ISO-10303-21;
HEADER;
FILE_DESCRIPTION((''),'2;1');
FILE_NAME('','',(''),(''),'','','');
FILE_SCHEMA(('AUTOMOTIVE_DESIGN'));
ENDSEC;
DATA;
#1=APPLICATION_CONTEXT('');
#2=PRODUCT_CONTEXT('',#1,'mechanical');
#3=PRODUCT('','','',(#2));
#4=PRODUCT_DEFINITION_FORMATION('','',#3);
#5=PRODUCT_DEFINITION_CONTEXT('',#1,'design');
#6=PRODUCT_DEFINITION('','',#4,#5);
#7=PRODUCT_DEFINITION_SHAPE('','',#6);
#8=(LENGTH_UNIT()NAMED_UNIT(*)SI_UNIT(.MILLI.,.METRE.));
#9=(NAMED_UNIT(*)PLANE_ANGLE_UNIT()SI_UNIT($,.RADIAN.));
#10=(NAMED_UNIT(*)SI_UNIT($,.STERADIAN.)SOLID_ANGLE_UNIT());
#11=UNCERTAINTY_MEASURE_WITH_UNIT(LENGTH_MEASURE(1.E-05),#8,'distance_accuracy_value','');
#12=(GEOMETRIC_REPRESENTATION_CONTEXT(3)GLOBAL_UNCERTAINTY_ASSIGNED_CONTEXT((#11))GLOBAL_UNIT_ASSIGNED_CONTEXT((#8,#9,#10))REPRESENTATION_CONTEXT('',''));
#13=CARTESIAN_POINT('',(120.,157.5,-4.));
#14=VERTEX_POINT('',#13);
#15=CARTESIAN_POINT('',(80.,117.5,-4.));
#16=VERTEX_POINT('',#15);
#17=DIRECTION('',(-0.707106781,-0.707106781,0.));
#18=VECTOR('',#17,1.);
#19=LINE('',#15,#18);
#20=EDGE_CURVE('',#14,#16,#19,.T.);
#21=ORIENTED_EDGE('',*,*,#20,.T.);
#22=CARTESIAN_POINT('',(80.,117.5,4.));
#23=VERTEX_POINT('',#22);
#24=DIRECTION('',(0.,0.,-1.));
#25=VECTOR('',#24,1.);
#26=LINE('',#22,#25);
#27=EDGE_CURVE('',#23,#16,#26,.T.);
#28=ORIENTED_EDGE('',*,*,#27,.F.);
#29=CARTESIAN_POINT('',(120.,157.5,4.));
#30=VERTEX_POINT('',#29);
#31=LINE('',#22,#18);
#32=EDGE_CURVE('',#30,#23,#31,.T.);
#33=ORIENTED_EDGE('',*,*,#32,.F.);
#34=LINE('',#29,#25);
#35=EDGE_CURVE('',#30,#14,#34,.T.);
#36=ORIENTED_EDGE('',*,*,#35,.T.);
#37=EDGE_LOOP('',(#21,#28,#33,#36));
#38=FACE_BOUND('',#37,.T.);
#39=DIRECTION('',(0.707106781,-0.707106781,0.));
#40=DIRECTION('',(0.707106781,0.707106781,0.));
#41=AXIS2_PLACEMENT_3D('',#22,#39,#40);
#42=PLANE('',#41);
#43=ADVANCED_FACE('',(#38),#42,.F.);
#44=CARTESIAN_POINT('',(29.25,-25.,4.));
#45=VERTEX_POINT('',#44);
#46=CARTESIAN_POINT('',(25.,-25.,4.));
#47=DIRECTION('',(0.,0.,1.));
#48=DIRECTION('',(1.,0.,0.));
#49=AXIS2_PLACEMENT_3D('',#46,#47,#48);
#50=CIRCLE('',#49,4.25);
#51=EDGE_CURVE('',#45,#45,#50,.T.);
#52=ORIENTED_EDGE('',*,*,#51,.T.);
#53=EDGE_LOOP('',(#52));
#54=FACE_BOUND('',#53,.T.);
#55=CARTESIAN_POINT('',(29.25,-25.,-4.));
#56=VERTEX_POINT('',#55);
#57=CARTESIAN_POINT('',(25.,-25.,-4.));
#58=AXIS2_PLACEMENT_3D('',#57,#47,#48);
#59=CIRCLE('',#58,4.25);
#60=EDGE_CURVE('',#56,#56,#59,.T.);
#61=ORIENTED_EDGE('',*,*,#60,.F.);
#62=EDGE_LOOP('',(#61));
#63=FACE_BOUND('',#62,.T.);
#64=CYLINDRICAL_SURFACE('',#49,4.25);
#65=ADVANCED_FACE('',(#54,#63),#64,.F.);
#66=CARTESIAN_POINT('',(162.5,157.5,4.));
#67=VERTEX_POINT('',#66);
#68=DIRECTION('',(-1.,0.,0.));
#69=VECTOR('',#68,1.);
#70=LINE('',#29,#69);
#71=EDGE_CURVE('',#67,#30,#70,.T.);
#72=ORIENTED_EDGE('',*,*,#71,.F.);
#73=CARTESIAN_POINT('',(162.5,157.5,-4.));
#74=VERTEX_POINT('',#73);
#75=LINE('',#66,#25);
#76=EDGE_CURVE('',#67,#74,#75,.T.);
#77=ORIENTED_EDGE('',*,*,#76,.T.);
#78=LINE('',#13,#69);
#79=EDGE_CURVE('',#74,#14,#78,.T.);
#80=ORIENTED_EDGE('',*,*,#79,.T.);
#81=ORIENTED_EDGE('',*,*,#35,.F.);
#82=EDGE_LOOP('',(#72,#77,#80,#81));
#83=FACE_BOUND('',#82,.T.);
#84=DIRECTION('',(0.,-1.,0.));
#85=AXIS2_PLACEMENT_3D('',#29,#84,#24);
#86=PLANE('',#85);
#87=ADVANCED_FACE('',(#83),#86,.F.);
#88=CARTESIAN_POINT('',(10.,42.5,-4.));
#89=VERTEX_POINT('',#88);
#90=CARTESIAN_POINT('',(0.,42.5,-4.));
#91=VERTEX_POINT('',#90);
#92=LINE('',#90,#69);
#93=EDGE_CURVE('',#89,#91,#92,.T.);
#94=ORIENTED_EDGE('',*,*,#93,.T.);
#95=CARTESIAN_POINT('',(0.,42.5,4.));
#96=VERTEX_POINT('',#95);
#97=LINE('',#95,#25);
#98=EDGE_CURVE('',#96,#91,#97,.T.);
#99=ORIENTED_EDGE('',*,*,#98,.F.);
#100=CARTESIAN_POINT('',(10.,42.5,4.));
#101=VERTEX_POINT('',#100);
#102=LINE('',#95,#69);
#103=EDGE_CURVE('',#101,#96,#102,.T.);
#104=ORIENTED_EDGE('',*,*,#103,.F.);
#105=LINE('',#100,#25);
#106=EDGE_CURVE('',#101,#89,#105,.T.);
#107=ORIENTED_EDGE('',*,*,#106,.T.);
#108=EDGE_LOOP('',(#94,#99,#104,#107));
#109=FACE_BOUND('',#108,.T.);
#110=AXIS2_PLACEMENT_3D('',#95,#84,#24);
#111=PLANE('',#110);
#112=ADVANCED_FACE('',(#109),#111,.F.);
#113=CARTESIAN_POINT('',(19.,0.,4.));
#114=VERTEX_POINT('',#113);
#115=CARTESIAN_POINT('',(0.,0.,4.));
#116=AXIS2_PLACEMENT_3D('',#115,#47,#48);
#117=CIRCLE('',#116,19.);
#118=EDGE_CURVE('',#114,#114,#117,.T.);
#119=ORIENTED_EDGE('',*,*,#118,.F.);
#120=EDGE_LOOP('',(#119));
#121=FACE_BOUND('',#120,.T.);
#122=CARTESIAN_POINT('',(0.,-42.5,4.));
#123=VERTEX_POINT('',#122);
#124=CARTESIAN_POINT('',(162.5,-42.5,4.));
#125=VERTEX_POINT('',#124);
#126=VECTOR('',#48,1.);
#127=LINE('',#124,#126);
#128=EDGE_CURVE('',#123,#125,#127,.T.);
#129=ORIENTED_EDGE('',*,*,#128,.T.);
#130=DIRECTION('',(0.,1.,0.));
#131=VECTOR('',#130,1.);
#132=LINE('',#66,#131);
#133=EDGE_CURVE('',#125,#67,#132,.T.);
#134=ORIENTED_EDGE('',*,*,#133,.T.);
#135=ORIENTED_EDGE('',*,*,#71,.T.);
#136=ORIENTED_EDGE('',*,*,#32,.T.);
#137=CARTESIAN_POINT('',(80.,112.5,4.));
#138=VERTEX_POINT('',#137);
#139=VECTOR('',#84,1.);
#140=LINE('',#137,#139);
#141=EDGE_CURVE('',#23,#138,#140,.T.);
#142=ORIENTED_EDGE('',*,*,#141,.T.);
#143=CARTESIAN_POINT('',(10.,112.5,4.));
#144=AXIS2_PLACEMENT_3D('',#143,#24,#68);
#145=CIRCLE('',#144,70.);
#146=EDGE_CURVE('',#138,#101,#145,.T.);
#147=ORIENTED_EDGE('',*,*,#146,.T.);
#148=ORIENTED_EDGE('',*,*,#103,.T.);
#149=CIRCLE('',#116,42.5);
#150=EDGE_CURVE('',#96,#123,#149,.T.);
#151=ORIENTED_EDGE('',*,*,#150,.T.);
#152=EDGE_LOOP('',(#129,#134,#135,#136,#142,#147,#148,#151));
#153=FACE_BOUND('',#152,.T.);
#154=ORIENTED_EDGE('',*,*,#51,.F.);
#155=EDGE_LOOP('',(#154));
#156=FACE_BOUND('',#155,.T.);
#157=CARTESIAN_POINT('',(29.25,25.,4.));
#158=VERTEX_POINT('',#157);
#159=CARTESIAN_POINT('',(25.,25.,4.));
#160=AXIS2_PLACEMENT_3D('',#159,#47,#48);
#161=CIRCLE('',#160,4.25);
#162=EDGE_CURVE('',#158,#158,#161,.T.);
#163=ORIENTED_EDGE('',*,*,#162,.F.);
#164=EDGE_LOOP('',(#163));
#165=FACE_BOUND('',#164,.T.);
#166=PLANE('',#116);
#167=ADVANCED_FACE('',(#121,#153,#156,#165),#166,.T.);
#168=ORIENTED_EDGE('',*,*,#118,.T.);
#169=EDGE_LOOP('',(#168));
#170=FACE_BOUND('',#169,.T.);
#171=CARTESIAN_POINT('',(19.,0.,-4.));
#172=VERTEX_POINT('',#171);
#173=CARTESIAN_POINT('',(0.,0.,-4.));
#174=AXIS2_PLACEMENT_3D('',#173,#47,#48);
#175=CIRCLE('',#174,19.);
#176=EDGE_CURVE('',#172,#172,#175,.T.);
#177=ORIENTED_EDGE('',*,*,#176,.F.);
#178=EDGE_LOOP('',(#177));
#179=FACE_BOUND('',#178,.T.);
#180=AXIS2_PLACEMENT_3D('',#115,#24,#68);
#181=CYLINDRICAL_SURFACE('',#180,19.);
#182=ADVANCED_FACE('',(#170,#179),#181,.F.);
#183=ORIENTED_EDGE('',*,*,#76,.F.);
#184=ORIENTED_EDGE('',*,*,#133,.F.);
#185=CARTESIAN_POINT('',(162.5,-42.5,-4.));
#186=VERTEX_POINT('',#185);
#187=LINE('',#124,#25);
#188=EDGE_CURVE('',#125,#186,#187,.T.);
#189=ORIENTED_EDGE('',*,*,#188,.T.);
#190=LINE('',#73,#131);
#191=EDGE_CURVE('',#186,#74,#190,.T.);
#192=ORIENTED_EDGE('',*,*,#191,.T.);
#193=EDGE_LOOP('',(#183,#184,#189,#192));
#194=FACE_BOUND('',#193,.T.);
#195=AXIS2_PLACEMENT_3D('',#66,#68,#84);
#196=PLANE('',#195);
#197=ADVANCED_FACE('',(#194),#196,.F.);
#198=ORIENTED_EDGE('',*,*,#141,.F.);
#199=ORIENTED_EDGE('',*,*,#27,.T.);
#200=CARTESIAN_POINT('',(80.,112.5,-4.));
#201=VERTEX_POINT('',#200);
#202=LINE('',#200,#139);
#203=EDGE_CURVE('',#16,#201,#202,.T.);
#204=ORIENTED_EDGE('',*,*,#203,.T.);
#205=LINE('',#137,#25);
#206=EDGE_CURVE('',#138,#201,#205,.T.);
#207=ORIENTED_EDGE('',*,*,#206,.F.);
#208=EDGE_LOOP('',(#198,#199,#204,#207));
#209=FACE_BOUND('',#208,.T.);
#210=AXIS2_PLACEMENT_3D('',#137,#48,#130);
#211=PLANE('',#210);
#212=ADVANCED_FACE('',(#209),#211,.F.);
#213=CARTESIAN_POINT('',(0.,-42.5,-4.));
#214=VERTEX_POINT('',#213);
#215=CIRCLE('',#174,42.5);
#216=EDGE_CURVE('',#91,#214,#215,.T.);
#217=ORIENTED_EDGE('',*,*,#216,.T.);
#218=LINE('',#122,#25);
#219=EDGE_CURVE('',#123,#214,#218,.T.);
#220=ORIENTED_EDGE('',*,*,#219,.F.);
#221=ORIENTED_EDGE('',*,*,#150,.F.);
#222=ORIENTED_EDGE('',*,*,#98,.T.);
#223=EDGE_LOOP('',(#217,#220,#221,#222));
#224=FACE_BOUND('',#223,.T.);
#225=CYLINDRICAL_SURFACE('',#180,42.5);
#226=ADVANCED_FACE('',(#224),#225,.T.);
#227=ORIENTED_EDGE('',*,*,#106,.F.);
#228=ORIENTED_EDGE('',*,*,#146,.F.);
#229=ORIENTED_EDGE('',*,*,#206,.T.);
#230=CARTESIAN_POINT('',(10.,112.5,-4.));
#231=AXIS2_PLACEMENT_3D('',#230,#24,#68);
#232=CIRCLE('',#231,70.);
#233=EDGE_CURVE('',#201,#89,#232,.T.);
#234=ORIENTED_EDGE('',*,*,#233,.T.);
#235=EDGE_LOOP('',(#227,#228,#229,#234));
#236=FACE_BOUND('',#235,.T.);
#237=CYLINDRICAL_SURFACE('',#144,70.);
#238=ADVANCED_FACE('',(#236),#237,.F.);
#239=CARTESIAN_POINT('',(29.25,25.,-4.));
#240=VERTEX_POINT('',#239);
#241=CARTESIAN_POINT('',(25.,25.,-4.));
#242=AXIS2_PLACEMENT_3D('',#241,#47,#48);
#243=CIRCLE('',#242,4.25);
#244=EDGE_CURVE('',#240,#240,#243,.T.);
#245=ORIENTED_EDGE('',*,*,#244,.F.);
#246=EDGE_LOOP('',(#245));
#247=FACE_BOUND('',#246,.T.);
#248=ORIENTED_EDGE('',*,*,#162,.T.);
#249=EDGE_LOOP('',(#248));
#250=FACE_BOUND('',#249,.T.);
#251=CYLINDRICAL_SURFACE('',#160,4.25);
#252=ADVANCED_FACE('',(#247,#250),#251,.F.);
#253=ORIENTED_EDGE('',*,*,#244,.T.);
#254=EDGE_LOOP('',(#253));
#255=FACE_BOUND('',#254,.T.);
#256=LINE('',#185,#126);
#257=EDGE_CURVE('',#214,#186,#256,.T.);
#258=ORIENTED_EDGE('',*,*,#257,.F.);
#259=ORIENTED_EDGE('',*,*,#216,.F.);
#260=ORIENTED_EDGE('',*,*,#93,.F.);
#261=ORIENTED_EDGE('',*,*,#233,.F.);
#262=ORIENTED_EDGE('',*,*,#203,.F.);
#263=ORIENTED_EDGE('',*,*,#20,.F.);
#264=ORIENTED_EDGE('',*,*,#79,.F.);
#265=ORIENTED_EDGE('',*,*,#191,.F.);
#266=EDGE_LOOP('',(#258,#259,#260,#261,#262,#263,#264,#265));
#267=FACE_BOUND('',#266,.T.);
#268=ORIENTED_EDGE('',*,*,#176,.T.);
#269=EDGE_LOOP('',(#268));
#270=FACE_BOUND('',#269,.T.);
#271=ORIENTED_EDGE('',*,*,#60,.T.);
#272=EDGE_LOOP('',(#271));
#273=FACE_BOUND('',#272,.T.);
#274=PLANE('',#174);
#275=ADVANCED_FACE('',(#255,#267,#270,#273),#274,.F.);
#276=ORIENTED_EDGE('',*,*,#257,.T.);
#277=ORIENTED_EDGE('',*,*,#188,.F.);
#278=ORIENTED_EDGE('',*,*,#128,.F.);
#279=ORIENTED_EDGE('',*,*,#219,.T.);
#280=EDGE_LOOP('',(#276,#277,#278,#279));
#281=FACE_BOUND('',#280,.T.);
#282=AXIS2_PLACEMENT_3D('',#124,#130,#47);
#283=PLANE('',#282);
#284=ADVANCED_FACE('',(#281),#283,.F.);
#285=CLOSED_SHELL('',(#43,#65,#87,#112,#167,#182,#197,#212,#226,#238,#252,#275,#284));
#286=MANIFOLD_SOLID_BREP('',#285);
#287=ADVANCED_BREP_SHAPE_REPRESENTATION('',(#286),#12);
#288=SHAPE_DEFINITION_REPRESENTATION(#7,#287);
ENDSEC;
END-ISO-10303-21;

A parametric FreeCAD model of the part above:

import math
import FreeCAD as App
import Part
import Sketcher
Q = App.Units.Quantity

doc = App.newDocument("Part")
params = doc.addObject("Spreadsheet::Sheet", "Params")
for row, (alias, value) in enumerate([
    ("sketch1_diameter", "38 mm"),
    ("sketch1_radius", "70 mm"),
    ("sketch1_radius2", "42.5 mm"),
    ("sketch1_width", "10 mm"),
    ("sketch1_height", "200 mm"),
    ("pad1_length", "8 mm"),
    ("sketch2_diameter", "8.5 mm"),
    ("hole_diameter", "8.5 mm"),
], start=1):
    params.set(f"A{row}", alias)
    params.set(f"B{row}", "=" + value)
    params.setAlias(f"B{row}", alias)

body = doc.addObject("PartDesign::Body", "Body")

# Sketch on XY plane
sketch1 = body.newObject("Sketcher::SketchObject", "Sketch")
sketch1.AttachmentSupport = (doc.getObject("XY_Plane"), [""])
sketch1.MapMode = "FlatFace"
sketch1.addGeometry(Part.LineSegment(App.Vector(10, 42.5, 0), App.Vector(0, 42.5, 0)), False)
sketch1.addGeometry(Part.ArcOfCircle(Part.Circle(App.Vector(0, 0, 0), App.Vector(0, 0, 1), 42.5), math.radians(90), math.radians(270)), False)
sketch1.addGeometry(Part.LineSegment(App.Vector(0, -42.5, 0), App.Vector(162.5, -42.5, 0)), False)
sketch1.addGeometry(Part.LineSegment(App.Vector(162.5, -42.5, 0), App.Vector(162.5, 157.5, 0)), False)
sketch1.addGeometry(Part.LineSegment(App.Vector(162.5, 157.5, 0), App.Vector(120, 157.5, 0)), False)
sketch1.addGeometry(Part.LineSegment(App.Vector(120, 157.5, 0), App.Vector(80, 117.5, 0)), False)
sketch1.addGeometry(Part.LineSegment(App.Vector(80, 117.5, 0), App.Vector(80, 112.5, 0)), False)
sketch1.addGeometry(Part.ArcOfCircle(Part.Circle(App.Vector(10, 112.5, 0), App.Vector(0, 0, 1), 70), math.radians(-90), math.radians(0)), False)
sketch1.addGeometry(Part.Circle(App.Vector(0, 0, 0), App.Vector(0, 0, 1), 19), False)
sketch1.addConstraint(Sketcher.Constraint("Tangent", 0, 2, 1, 1))
sketch1.addConstraint(Sketcher.Constraint("Tangent", 1, 2, 2, 1))
sketch1.addConstraint(Sketcher.Constraint("Coincident", 2, 2, 3, 1))
sketch1.addConstraint(Sketcher.Constraint("Coincident", 3, 2, 4, 1))
sketch1.addConstraint(Sketcher.Constraint("Coincident", 4, 2, 5, 1))
sketch1.addConstraint(Sketcher.Constraint("Coincident", 5, 2, 6, 1))
sketch1.addConstraint(Sketcher.Constraint("Tangent", 6, 2, 7, 2))
sketch1.addConstraint(Sketcher.Constraint("Tangent", 7, 1, 0, 1))
sketch1.addConstraint(Sketcher.Constraint("Horizontal", 0))
sketch1.addConstraint(Sketcher.Constraint("Horizontal", 2))
sketch1.addConstraint(Sketcher.Constraint("Vertical", 3))
sketch1.addConstraint(Sketcher.Constraint("Horizontal", 4))
sketch1.addConstraint(Sketcher.Constraint("Vertical", 6))
sketch1.addConstraint(Sketcher.Constraint("Coincident", 1, 3, -1, 1))
sketch1.addConstraint(Sketcher.Constraint("Coincident", 8, 3, -1, 1))
sketch1.addConstraint(Sketcher.Constraint("Diameter", 8, Q("38 mm")))
sketch1.addConstraint(Sketcher.Constraint("Radius", 7, Q("70 mm")))
sketch1.addConstraint(Sketcher.Constraint("Radius", 1, Q("42.5 mm")))
sketch1.addConstraint(Sketcher.Constraint("DistanceX", 0, 2, 0, 1, Q("10 mm")))
sketch1.addConstraint(Sketcher.Constraint("DistanceY", 3, 1, 3, 2, Q("200 mm")))
sketch1.addConstraint(Sketcher.Constraint("DistanceY", 6, 2, 6, 1, Q("5 mm")))
sketch1.addConstraint(Sketcher.Constraint("Angle", 5, Q("-135 deg")))
sketch1.addConstraint(Sketcher.Constraint("DistanceX", 2, 1, 2, 2, Q("162.5 mm")))
sketch1.setExpression("Constraints[15]", "Params.sketch1_diameter")
sketch1.setExpression("Constraints[16]", "Params.sketch1_radius")
sketch1.setExpression("Constraints[17]", "Params.sketch1_radius2")
sketch1.setExpression("Constraints[18]", "Params.sketch1_width")
sketch1.setExpression("Constraints[19]", "Params.sketch1_height")
pad1 = body.newObject("PartDesign::Pad", "Pad")
pad1.Profile = sketch1
pad1.setExpression("Length", "Params.pad1_length")
pad1.Midplane = True

# Sketch on XY plane
sketch2 = body.newObject("Sketcher::SketchObject", "Sketch001")
sketch2.AttachmentSupport = (doc.getObject("XY_Plane"), [""])
sketch2.MapMode = "FlatFace"
sketch2.AttachmentOffset = App.Placement(App.Vector(0, 0, 4), App.Rotation())
sketch2.addGeometry(Part.Circle(App.Vector(25, -25, 0), App.Vector(0, 0, 1), 4.25), False)
sketch2.addGeometry(Part.Circle(App.Vector(25, 25, 0), App.Vector(0, 0, 1), 4.25), False)
sketch2.addConstraint(Sketcher.Constraint("Equal", 0, 1))
sketch2.addConstraint(Sketcher.Constraint("Symmetric", 0, 3, 1, 3, -1))
sketch2.addConstraint(Sketcher.Constraint("Diameter", 0, Q("8.5 mm")))
sketch2.addConstraint(Sketcher.Constraint("DistanceX", -1, 1, 0, 3, Q("25 mm")))
sketch2.addConstraint(Sketcher.Constraint("DistanceY", 0, 3, -1, 1, Q("25 mm")))
sketch2.setExpression("Constraints[2]", "Params.sketch2_diameter")
doc.recompute()
hole = body.newObject("PartDesign::Hole", "Hole")
hole.Profile = sketch2
hole.ThreadType = "None"
hole.setExpression("Diameter", "Params.hole_diameter")
hole.DepthType = "ThroughAll"

doc.recompute()
